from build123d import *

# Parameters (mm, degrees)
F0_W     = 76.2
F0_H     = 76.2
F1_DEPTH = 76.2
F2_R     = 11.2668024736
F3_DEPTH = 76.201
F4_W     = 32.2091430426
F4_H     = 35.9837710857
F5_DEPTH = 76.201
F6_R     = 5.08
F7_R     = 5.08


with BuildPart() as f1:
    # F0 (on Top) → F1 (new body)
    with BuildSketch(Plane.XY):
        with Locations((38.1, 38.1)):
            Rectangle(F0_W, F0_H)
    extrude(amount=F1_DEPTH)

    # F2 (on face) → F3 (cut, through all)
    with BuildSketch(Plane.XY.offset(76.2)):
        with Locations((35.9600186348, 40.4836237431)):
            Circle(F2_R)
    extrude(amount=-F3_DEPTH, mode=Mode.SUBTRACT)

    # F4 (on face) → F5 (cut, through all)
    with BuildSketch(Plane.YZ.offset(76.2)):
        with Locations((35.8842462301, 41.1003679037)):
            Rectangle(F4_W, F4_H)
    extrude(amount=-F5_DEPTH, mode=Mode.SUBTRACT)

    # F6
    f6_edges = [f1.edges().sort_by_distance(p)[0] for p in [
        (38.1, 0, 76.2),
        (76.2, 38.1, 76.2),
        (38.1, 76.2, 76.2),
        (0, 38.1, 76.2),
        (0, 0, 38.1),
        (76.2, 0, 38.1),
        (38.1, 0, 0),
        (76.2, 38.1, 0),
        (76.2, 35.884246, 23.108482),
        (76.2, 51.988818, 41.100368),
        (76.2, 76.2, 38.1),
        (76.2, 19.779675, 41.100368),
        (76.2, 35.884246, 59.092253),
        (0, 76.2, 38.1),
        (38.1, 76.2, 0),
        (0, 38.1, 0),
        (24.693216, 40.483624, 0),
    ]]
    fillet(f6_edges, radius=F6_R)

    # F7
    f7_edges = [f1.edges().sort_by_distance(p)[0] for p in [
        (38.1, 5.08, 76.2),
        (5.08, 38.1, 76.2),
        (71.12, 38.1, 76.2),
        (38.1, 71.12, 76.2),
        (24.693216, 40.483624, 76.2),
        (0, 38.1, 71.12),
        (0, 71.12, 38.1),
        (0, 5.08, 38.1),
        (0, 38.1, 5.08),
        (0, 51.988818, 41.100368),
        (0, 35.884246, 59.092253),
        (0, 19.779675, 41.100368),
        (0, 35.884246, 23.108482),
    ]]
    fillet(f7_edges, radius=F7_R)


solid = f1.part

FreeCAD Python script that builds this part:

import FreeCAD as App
import Part
import Sketcher
Q = App.Units.Quantity


def edges_at(feature, points):
    """Names of the edges that pass closest to the given points."""
    edges = feature.Shape.Edges
    near = lambda p: min(range(len(edges)), key=lambda i: edges[i].distToShape(Part.Vertex(*p))[0])
    return sorted({f"Edge{near(p) + 1}" for p in points})


def add_polygon(sketch, points):
    """Adds a closed chain of lines whose ends are joined by coincident constraints."""
    first, n = sketch.GeometryCount, len(points)
    for a, b in zip(points, points[1:] + points[:1]):
        sketch.addGeometry(Part.LineSegment(App.Vector(*a, 0), App.Vector(*b, 0)), False)
    for i in range(n):
        sketch.addConstraint(Sketcher.Constraint("Coincident", first + i, 2, first + (i + 1) % n, 1))

doc = App.newDocument("Part")
body = doc.addObject("PartDesign::Body", "Body")

# Sketch on XY plane
sketch1 = doc.addObject("Sketcher::SketchObject", "Sketch")
body.addObject(sketch1)
sketch1.AttachmentSupport = (doc.XY_Plane, [""])
sketch1.MapMode = "FlatFace"
add_polygon(sketch1, [(0, 76), (0, 0), (76, 0), (76, 76)])  # lines 0-3
sketch1.addConstraint([
    Sketcher.Constraint("Vertical", 0),
    Sketcher.Constraint("Horizontal", 1),
    Sketcher.Constraint("Vertical", 2),
    Sketcher.Constraint("Horizontal", 3),
    Sketcher.Constraint("Coincident", 0, 2, -1, 1),
    Sketcher.Constraint("Equal", 3, 0),
    Sketcher.Constraint("DistanceX", 1, 1, 1, 2, Q("3 in")),
])
pad1 = doc.addObject("PartDesign::Pad", "Pad")
body.addObject(pad1)
pad1.Profile = sketch1
pad1.Length = Q("3 in")

# Sketch on XY plane
sketch2 = doc.addObject("Sketcher::SketchObject", "Sketch001")
body.addObject(sketch2)
sketch2.AttachmentSupport = (doc.XY_Plane, [""])
sketch2.MapMode = "FlatFace"
sketch2.AttachmentOffset = App.Placement(App.Vector(0, 0, 3 * 25.4), App.Rotation())
sketch2.addGeometry(Part.Circle(App.Vector(36, 40, 0), App.Vector(0, 0, 1), 11), False)
sketch2.addConstraint([
    Sketcher.Constraint("Diameter", 0, 22.533605),
    Sketcher.Constraint("DistanceX", -1, 1, 0, 3, 35.960019),
    Sketcher.Constraint("DistanceY", -1, 1, 0, 3, 40.483624),
])
pocket1 = doc.addObject("PartDesign::Pocket", "Pocket")
body.addObject(pocket1)
pocket1.Profile = sketch2
pocket1.Type = "ThroughAll"

# Sketch on YZ plane
sketch3 = doc.addObject("Sketcher::SketchObject", "Sketch002")
body.addObject(sketch3)
sketch3.AttachmentSupport = (doc.YZ_Plane, [""])
sketch3.MapMode = "FlatFace"
sketch3.AttachmentOffset = App.Placement(App.Vector(0, 0, 3 * 25.4), App.Rotation())
add_polygon(sketch3, [(20, 59), (20, 23), (52, 23), (52, 59)])  # lines 0-3
sketch3.addConstraint([
    Sketcher.Constraint("Vertical", 0),
    Sketcher.Constraint("Horizontal", 1),
    Sketcher.Constraint("Vertical", 2),
    Sketcher.Constraint("Horizontal", 3),
    Sketcher.Constraint("DistanceY", 0, 2, 0, 1, 35.983771),
    Sketcher.Constraint("DistanceX", 1, 1, 1, 2, 32.209143),
    Sketcher.Constraint("DistanceX", -1, 1, 0, 2, 19.779675),
    Sketcher.Constraint("DistanceY", -1, 1, 0, 2, 23.108482),
])
pocket2 = doc.addObject("PartDesign::Pocket", "Pocket001")
body.addObject(pocket2)
pocket2.Profile = sketch3
pocket2.Type = "ThroughAll"
doc.recompute()

fillet = doc.addObject("PartDesign::Fillet", "Fillet")
body.addObject(fillet)
fillet.Base = (pocket2, edges_at(pocket2, [
    (38.1, 0, 76.2),
    (76.2, 38.1, 76.2),
    (38.1, 76.2, 76.2),
    (0, 38.1, 76.2),
    (0, 0, 38.1),
    (76.2, 0, 38.1),
    (38.1, 0, 0),
    (76.2, 38.1, 0),
    (76.2, 35.884, 23.108),
    (76.2, 51.989, 41.1),
    (76.2, 76.2, 38.1),
    (76.2, 19.78, 41.1),
    (76.2, 35.884, 59.092),
    (0, 76.2, 38.1),
    (38.1, 76.2, 0),
    (0, 38.1, 0),
    (24.693, 40.484, 0),
]))
fillet.Radius = Q("0.2 in")
doc.recompute()

fillet2 = doc.addObject("PartDesign::Fillet", "Fillet001")
body.addObject(fillet2)
fillet2.Base = (fillet, edges_at(fillet, [
    (38.1, 5.08, 76.2),
    (5.08, 38.1, 76.2),
    (71.12, 38.1, 76.2),
    (38.1, 71.12, 76.2),
    (24.693, 40.484, 76.2),
    (0, 38.1, 71.12),
    (0, 71.12, 38.1),
    (0, 5.08, 38.1),
    (0, 38.1, 5.08),
    (0, 51.989, 41.1),
    (0, 35.884, 59.092),
    (0, 19.78, 41.1),
    (0, 35.884, 23.108),
]))
fillet2.Radius = Q("0.2 in")

doc.recompute()
